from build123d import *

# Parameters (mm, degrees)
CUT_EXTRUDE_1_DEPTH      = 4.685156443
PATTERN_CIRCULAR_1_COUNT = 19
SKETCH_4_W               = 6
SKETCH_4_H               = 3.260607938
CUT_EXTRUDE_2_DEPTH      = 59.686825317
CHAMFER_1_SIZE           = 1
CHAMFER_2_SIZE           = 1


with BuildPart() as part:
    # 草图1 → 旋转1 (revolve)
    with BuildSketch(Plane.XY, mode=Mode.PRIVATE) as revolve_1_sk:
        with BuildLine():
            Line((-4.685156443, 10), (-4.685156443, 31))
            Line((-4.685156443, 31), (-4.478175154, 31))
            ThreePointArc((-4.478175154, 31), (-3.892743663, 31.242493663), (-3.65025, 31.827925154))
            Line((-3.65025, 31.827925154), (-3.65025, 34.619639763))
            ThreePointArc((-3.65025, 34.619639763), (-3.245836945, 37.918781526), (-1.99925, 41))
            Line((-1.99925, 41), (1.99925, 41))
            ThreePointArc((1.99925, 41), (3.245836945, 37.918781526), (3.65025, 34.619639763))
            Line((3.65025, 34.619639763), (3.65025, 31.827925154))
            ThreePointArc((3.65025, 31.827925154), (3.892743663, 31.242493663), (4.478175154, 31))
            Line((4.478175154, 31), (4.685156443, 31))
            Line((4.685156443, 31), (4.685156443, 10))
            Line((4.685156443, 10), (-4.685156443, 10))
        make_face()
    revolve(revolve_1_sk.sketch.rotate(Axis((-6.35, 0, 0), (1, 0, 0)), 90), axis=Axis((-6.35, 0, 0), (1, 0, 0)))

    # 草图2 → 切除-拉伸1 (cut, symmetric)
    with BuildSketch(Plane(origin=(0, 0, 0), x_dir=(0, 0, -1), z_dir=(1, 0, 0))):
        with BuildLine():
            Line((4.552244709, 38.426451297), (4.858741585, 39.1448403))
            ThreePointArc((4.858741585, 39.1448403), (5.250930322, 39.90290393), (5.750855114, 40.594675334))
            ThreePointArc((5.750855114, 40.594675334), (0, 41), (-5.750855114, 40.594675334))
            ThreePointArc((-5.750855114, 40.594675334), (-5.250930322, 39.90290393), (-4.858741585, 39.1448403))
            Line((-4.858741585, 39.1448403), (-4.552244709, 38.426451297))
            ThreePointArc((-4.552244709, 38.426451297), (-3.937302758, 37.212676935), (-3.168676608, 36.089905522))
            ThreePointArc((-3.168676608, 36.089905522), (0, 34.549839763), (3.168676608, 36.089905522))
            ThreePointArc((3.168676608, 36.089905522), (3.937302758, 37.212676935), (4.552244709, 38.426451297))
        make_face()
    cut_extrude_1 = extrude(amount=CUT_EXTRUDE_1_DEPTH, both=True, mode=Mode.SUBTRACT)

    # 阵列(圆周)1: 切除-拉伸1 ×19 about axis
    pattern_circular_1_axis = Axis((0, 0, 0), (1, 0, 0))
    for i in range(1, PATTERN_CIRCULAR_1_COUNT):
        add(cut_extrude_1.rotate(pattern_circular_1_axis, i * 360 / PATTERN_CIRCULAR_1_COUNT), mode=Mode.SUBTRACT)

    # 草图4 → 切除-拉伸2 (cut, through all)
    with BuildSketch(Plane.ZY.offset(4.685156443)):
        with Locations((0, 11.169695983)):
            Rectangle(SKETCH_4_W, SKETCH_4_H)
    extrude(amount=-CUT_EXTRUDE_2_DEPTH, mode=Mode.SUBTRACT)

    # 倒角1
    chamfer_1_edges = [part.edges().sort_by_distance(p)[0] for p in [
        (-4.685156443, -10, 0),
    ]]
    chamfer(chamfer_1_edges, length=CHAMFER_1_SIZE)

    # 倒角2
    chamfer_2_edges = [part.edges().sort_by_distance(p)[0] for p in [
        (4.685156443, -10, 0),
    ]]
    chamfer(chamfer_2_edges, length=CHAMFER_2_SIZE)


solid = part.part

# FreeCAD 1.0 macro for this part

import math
import FreeCAD as App
import Part
import Sketcher


def edges_at(feature, points):
    """Names of the edges that pass closest to the given points."""
    edges = feature.Shape.Edges
    near = lambda p: min(range(len(edges)), key=lambda i: edges[i].distToShape(Part.Vertex(*p))[0])
    return sorted({f"Edge{near(p) + 1}" for p in points})

doc = App.newDocument("Part")
body = doc.addObject("PartDesign::Body", "Body")

# Sketch on XY plane
sketch1 = doc.addObject("Sketcher::SketchObject", "Sketch")
body.addObject(sketch1)
sketch1.AttachmentSupport = (doc.XY_Plane, [""])
sketch1.MapMode = "FlatFace"
sketch1.addGeometry([
    Part.LineSegment(App.Vector(-4.69, 31, 0), App.Vector(-4.69, 10, 0)),  # 0
    Part.LineSegment(App.Vector(-4.69, 10, 0), App.Vector(4.69, 10, 0)),  # 1
    Part.LineSegment(App.Vector(4.69, 10, 0), App.Vector(4.69, 31, 0)),  # 2
    Part.LineSegment(App.Vector(4.69, 31, 0), App.Vector(4.48, 31, 0)),  # 3
    Part.ArcOfCircle(Part.Circle(App.Vector(4.48, 31.83, 0), App.Vector(0, 0, 1), 0.83), math.radians(180), math.radians(270)),  # 4
    Part.LineSegment(App.Vector(3.65, 31.83, 0), App.Vector(3.65, 34.62, 0)),  # 5
    Part.ArcOfCircle(Part.Circle(App.Vector(-9.05, 34.74, 0), App.Vector(0, 0, 1), 12.7), math.radians(-1), math.radians(30)),  # 6
    Part.LineSegment(App.Vector(2, 41, 0), App.Vector(-2, 41, 0)),  # 7
    Part.ArcOfCircle(Part.Circle(App.Vector(9.05, 34.74, 0), App.Vector(0, 0, 1), 12.7), math.radians(150), math.radians(181)),  # 8
    Part.LineSegment(App.Vector(-3.65, 34.62, 0), App.Vector(-3.65, 31.83, 0)),  # 9
    Part.ArcOfCircle(Part.Circle(App.Vector(-4.48, 31.83, 0), App.Vector(0, 0, 1), 0.83), math.radians(-90), math.radians(0)),  # 10
    Part.LineSegment(App.Vector(-4.48, 31, 0), App.Vector(-4.69, 31, 0)),  # 11
], False)
sketch1.addConstraint([
    Sketcher.Constraint("Coincident", 0, 2, 1, 1),
    Sketcher.Constraint("Coincident", 1, 2, 2, 1),
    Sketcher.Constraint("Coincident", 2, 2, 3, 1),
    Sketcher.Constraint("Tangent", 3, 2, 4, 2),
    Sketcher.Constraint("Tangent", 4, 1, 5, 1),
    Sketcher.Constraint("Coincident", 5, 2, 6, 1),
    Sketcher.Constraint("Coincident", 6, 2, 7, 1),
    Sketcher.Constraint("Coincident", 7, 2, 8, 1),
    Sketcher.Constraint("Coincident", 8, 2, 9, 1),
    Sketcher.Constraint("Tangent", 9, 2, 10, 2),
    Sketcher.Constraint("Tangent", 10, 1, 11, 1),
    Sketcher.Constraint("Coincident", 11, 2, 0, 1),
    Sketcher.Constraint("Vertical", 0),
    Sketcher.Constraint("Horizontal", 1),
    Sketcher.Constraint("Vertical", 2),
    Sketcher.Constraint("Horizontal", 3),
    Sketcher.Constraint("Vertical", 5),
    Sketcher.Constraint("Horizontal", 7),
    Sketcher.Constraint("Vertical", 9),
    Sketcher.Constraint("Horizontal", 11),
    Sketcher.Constraint("Equal", 6, 8),
    Sketcher.Constraint("Equal", 4, 10),
    Sketcher.Constraint("Symmetric", 6, 3, 8, 3, -2),
    Sketcher.Constraint("Symmetric", 4, 3, 10, 3, -2),
    Sketcher.Constraint("Equal", 3, 11),
    Sketcher.Constraint("Radius", 6, 12.7),
    Sketcher.Constraint("DistanceY", 0, 2, 0, 1, 21.0),
    Sketcher.Constraint("DistanceY", -1, 1, 0, 2, 10.0),
    Sketcher.Constraint("DistanceY", -1, 1, 6, 2, 41.0),
    Sketcher.Constraint("DistanceX", 7, 2, 7, 1, 3.9985),
    Sketcher.Constraint("Radius", 4, 0.827925),
    Sketcher.Constraint("DistanceX", 6, 2, 5, 2, 1.651),
    Sketcher.Constraint("DistanceX", 3, 2, 3, 1, 0.206981),
    Sketcher.Constraint("DistanceY", 5, 1, 5, 2, 2.791715),
])
revolution = doc.addObject("PartDesign::Revolution", "Revolution")
body.addObject(revolution)
revolution.Profile = sketch1
revolution.ReferenceAxis = (sketch1, ["H_Axis"])
revolution.Angle = 360

# Sketch on YZ plane
sketch2 = doc.addObject("Sketcher::SketchObject", "Sketch001")
body.addObject(sketch2)
sketch2.AttachmentSupport = (doc.YZ_Plane, [""])
sketch2.MapMode = "FlatFace"
sketch2.addGeometry([
    Part.LineSegment(App.Vector(38.4, -4.6, 0), App.Vector(39.1, -4.9, 0)),  # 0
    Part.ArcOfCircle(Part.Circle(App.Vector(36.9, -10.2, 0), App.Vector(0, 0, 1), 5.8), math.radians(49.9), math.radians(66.89)),  # 1
    Part.ArcOfCircle(Part.Circle(App.Vector(0, 0, 0), App.Vector(0, 0, 1), 41), math.radians(-8.06), math.radians(8.06)),  # 2
    Part.ArcOfCircle(Part.Circle(App.Vector(36.9, 10.2, 0), App.Vector(0, 0, 1), 5.8), math.radians(-66.89), math.radians(-49.9)),  # 3
    Part.LineSegment(App.Vector(39.1, 4.9, 0), App.Vector(38.4, 4.6, 0)),  # 4
    Part.ArcOfCircle(Part.Circle(App.Vector(42.5, -5, 0), App.Vector(0, 0, 1), 10.4), math.radians(113.11), math.radians(128.16)),  # 5
    Part.ArcOfCircle(Part.Circle(App.Vector(38.6, 0, 0), App.Vector(0, 0, 1), 4), math.radians(128), math.radians(232)),  # 6
    Part.ArcOfCircle(Part.Circle(App.Vector(42.5, 5, 0), App.Vector(0, 0, 1), 10.4), math.radians(-128.16), math.radians(-113.11)),  # 7
], False)
sketch2.addConstraint([
    Sketcher.Constraint("Tangent", 0, 2, 1, 2),
    Sketcher.Constraint("Coincident", 1, 1, 2, 1),
    Sketcher.Constraint("Coincident", 2, 2, 3, 2),
    Sketcher.Constraint("Tangent", 3, 1, 4, 1),
    Sketcher.Constraint("Tangent", 4, 2, 5, 1),
    Sketcher.Constraint("Tangent", 5, 2, 6, 1),
    Sketcher.Constraint("Tangent", 6, 2, 7, 1),
    Sketcher.Constraint("Tangent", 7, 2, 0, 1),
    Sketcher.Constraint("Coincident", 2, 3, -1, 1),
    Sketcher.Constraint("Equal", 1, 3),
    Sketcher.Constraint("Equal", 5, 7),
    Sketcher.Constraint("Symmetric", 1, 3, 3, 3, -1),
    Sketcher.Constraint("Symmetric", 5, 3, 7, 3, -1),
    Sketcher.Constraint("Radius", 2, 41.0),
    Sketcher.Constraint("Radius", 5, 10.3658),
    Sketcher.Constraint("Radius", 6, 4.0298),
    Sketcher.Constraint("Radius", 1, 5.758772),
    Sketcher.Constraint("DistanceX", 6, 3, 0, 2, 0.565201),
    Sketcher.Constraint("DistanceX", 1, 3, 1, 1, 3.709701),
    Sketcher.Constraint("Distance", 0, 0.78104),
    Sketcher.Constraint("DistanceX", -1, 1, 6, 3, 38.57964),
])
pocket1 = doc.addObject("PartDesign::Pocket", "Pocket")
body.addObject(pocket1)
pocket1.Profile = sketch2
pocket1.Length = 9.370313
pocket1.Midplane = True
doc.recompute()

polarpattern = doc.addObject("PartDesign::PolarPattern", "PolarPattern")
body.addObject(polarpattern)
polarpattern.Originals = [pocket1]
polarpattern.Axis = (doc.X_Axis, [""])
polarpattern.Angle = 360
polarpattern.Occurrences = 19
body.Tip = polarpattern

# Sketch on YZ plane
sketch3 = doc.addObject("Sketcher::SketchObject", "Sketch002")
body.addObject(sketch3)
sketch3.AttachmentSupport = (doc.YZ_Plane, [""])
sketch3.MapMode = "FlatFace"
sketch3.AttachmentOffset = App.Placement(App.Vector(0, 0, -4.685156), App.Rotation())
sketch3.addGeometry([
    Part.LineSegment(App.Vector(12.8, -3, 0), App.Vector(9.5, -3, 0)),
    Part.LineSegment(App.Vector(9.5, -3, 0), App.Vector(9.5, 3, 0)),
    Part.LineSegment(App.Vector(9.5, 3, 0), App.Vector(12.8, 3, 0)),
    Part.LineSegment(App.Vector(12.8, 3, 0), App.Vector(12.8, -3, 0)),
], False)
sketch3.addConstraint([
    Sketcher.Constraint("Coincident", 0, 2, 1, 1),
    Sketcher.Constraint("Coincident", 1, 2, 2, 1),
    Sketcher.Constraint("Coincident", 2, 2, 3, 1),
    Sketcher.Constraint("Coincident", 3, 2, 0, 1),
    Sketcher.Constraint("Horizontal", 0),
    Sketcher.Constraint("Vertical", 1),
    Sketcher.Constraint("Horizontal", 2),
    Sketcher.Constraint("Vertical", 3),
    Sketcher.Constraint("DistanceY", 1, 1, 1, 2, 6.0),
    Sketcher.Constraint("DistanceY", 0, 2, -1, 1, 3.0),
    Sketcher.Constraint("DistanceX", -1, 1, 2, 2, 12.8),
    Sketcher.Constraint("DistanceX", 0, 2, 0, 1, 3.260608),
])
pocket2 = doc.addObject("PartDesign::Pocket", "Pocket001")
body.addObject(pocket2)
pocket2.Profile = sketch3
pocket2.Type = "ThroughAll"
pocket2.Reversed = True
doc.recompute()

chamfer = doc.addObject("PartDesign::Chamfer", "Chamfer")
body.addObject(chamfer)
chamfer.Base = (pocket2, edges_at(pocket2, [(-4.685, -10, 0)]))
chamfer.Size = 1
doc.recompute()

chamfer2 = doc.addObject("PartDesign::Chamfer", "Chamfer001")
body.addObject(chamfer2)
chamfer2.Base = (chamfer, edges_at(chamfer, [(4.685, -10, 0)]))
chamfer2.Size = 1

doc.recompute()
